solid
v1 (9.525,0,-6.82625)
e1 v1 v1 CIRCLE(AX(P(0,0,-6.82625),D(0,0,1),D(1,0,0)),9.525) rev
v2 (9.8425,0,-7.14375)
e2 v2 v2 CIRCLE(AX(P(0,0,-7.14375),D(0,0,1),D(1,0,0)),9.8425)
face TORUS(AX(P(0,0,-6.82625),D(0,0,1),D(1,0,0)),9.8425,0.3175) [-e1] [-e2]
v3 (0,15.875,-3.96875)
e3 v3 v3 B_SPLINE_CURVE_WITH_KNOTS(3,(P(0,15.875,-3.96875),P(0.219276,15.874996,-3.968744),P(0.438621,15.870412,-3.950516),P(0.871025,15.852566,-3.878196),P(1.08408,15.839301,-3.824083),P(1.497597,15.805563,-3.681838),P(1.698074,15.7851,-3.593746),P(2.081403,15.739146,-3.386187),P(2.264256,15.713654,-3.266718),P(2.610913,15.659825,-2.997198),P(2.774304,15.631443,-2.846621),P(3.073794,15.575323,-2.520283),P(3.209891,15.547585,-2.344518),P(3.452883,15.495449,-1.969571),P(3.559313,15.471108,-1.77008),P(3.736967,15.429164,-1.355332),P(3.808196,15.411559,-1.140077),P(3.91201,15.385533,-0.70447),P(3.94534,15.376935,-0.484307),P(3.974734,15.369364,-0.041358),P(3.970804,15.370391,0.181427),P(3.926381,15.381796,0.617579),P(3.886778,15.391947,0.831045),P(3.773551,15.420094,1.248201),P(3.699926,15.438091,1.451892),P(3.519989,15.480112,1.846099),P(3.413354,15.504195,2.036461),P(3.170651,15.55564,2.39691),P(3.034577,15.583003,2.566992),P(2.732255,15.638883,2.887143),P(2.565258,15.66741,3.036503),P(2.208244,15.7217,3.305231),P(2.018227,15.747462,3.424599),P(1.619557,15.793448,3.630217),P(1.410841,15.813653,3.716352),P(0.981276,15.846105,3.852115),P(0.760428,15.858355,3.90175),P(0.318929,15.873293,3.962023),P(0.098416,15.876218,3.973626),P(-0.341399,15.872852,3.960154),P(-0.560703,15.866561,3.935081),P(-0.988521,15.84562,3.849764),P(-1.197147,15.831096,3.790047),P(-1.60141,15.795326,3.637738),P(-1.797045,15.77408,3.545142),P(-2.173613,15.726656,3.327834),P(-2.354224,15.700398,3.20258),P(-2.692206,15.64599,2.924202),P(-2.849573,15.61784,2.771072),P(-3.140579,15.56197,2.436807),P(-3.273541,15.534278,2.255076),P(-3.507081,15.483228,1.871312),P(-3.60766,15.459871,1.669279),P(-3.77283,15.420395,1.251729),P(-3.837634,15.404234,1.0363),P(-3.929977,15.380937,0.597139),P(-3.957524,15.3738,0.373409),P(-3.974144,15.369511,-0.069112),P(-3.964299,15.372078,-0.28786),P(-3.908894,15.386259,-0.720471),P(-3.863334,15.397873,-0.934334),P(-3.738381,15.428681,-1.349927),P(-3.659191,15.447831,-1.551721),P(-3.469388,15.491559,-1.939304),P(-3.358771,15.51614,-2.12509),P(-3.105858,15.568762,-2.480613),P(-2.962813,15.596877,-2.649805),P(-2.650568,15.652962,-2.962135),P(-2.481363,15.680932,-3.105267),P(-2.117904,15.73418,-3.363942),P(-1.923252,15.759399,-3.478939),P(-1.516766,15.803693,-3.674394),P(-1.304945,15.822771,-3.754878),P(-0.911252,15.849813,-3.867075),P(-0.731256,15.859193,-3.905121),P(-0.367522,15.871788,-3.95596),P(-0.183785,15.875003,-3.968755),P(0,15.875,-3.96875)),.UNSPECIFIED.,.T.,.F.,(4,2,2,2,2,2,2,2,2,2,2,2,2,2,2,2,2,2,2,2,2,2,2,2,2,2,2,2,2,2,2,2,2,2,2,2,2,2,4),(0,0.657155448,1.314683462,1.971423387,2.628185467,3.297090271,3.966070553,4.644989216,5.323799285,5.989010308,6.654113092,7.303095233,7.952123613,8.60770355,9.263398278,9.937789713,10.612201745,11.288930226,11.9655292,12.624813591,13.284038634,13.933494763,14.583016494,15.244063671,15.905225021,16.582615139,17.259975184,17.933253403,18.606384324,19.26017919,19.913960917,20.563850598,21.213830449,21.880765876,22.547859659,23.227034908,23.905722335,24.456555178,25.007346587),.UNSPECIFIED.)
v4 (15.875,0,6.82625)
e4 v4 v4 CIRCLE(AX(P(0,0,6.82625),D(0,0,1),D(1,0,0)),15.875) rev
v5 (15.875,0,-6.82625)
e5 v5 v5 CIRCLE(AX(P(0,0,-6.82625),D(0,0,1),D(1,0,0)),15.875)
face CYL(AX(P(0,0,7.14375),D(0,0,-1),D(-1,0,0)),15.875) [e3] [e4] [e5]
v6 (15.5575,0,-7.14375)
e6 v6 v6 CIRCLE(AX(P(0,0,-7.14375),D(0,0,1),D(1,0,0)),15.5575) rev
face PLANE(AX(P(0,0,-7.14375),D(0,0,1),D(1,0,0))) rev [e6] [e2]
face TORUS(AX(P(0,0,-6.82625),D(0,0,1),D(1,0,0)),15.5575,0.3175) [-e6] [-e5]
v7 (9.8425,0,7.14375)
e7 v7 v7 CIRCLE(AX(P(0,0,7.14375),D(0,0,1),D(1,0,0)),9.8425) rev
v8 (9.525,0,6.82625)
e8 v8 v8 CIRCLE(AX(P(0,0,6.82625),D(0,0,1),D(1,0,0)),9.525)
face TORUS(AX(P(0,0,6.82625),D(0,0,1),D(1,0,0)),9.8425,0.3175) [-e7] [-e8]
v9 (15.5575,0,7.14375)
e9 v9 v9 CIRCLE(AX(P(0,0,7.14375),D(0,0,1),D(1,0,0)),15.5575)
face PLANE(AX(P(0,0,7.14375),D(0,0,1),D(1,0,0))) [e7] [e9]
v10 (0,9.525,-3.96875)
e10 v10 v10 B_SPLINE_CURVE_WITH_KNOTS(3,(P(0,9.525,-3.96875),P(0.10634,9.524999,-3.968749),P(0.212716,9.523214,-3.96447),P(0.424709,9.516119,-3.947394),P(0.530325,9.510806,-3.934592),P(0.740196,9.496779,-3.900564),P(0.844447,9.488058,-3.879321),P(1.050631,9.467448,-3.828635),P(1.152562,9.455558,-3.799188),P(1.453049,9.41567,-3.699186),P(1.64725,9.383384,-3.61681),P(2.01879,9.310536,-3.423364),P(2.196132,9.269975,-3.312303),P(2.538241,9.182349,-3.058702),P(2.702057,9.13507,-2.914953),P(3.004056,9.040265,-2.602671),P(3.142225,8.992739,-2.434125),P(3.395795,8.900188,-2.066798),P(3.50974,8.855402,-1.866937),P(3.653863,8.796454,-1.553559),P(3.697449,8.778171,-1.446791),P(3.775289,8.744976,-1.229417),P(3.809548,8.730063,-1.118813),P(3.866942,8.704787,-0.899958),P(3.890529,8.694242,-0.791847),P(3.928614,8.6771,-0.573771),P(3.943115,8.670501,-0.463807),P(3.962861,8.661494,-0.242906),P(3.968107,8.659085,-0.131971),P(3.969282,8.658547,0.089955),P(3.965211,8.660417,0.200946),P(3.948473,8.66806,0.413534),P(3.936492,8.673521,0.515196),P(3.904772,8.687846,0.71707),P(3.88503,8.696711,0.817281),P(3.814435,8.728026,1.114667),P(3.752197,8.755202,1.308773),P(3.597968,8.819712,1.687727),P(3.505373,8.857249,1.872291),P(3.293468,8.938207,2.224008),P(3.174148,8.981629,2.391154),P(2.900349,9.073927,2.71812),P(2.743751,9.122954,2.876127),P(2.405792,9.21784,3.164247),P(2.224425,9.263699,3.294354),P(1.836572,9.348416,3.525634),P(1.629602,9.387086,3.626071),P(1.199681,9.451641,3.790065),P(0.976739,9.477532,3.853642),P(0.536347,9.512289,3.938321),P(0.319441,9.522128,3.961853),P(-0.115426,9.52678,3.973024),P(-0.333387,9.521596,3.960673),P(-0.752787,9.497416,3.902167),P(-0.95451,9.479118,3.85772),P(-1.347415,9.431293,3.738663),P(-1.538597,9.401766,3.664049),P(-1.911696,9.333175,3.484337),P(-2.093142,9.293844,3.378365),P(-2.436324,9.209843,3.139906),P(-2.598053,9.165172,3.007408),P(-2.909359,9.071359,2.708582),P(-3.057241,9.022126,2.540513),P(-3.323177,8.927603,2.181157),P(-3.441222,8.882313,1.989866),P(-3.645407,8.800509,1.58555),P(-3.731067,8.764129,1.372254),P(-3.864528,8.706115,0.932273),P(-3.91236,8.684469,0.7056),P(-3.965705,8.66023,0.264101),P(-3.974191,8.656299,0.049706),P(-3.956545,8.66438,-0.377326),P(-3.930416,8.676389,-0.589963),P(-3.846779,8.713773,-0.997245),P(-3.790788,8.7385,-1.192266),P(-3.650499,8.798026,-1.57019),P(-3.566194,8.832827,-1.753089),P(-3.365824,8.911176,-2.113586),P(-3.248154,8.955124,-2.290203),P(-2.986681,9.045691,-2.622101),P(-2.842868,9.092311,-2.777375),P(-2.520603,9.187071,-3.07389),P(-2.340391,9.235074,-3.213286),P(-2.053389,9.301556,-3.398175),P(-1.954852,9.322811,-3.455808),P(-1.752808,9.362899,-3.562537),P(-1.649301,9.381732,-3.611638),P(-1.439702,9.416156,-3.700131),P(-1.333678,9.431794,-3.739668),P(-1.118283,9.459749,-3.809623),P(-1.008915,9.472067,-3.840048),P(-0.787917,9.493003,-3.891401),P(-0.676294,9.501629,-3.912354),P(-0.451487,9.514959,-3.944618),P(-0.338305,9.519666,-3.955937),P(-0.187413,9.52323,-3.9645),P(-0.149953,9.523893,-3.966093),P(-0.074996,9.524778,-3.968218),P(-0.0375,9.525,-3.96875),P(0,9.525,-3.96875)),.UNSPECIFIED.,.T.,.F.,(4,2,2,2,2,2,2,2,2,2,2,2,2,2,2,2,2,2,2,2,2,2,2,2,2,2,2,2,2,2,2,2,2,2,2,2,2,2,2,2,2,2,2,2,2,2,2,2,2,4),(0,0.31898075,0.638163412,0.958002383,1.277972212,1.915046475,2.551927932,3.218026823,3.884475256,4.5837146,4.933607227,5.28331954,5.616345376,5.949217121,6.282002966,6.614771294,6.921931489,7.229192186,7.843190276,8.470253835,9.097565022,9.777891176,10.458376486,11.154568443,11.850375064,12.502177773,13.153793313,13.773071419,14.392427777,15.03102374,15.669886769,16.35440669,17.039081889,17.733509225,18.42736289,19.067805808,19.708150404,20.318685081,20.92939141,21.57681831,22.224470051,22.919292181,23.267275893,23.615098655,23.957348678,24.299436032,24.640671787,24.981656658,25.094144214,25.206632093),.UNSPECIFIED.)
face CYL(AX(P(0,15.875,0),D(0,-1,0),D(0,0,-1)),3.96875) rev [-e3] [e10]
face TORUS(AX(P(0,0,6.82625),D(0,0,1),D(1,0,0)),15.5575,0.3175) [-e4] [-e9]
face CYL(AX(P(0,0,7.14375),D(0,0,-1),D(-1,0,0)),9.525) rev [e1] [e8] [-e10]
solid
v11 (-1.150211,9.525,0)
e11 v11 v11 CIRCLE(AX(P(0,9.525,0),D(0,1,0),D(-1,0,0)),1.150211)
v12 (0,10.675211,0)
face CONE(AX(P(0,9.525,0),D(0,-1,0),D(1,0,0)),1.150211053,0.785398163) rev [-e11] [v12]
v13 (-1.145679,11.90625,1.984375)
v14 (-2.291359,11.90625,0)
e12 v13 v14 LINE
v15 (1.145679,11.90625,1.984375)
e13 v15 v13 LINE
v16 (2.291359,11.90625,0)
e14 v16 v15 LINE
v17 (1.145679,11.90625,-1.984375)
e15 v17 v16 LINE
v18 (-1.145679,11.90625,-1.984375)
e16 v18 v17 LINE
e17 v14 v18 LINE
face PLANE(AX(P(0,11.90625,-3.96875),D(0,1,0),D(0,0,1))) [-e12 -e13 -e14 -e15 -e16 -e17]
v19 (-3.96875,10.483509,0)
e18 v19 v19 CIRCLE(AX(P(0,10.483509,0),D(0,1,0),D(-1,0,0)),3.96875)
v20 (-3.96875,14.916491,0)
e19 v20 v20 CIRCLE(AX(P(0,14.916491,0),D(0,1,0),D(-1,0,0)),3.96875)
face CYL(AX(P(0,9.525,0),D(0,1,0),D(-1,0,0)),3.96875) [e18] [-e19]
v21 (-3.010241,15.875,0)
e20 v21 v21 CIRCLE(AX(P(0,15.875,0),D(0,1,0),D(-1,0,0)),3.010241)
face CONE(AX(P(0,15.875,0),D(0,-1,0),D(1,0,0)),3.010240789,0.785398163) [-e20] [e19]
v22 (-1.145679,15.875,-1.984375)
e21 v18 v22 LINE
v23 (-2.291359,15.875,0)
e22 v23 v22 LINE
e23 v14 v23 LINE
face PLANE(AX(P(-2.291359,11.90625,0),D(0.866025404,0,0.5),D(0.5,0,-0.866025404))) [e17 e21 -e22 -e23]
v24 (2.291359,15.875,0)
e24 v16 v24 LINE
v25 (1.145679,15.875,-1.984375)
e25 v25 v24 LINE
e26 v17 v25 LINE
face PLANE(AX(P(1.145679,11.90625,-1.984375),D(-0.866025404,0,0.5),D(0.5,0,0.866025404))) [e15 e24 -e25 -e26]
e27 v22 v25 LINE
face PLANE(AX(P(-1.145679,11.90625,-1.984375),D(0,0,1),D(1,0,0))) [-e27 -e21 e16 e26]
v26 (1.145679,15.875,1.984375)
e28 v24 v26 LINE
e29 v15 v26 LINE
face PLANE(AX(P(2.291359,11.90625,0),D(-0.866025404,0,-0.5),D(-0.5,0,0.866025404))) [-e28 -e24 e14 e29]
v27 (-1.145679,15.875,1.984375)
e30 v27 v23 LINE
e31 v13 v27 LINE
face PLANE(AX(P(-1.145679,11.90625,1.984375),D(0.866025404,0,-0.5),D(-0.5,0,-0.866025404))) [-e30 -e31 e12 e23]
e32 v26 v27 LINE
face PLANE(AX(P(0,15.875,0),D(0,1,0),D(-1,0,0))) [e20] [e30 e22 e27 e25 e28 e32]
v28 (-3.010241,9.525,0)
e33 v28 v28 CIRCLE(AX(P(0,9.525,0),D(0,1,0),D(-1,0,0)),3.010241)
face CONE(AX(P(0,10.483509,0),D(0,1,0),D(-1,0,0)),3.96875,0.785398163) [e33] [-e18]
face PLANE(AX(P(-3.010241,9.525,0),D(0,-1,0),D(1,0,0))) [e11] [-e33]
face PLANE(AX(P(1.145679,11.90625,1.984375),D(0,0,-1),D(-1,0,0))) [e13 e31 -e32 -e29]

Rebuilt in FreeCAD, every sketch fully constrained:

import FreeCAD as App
import Part
import Sketcher
Q = App.Units.Quantity


def edges_at(feature, points):
    """Names of the edges that pass closest to the given points."""
    edges = feature.Shape.Edges
    near = lambda p: min(range(len(edges)), key=lambda i: edges[i].distToShape(Part.Vertex(*p))[0])
    return sorted({f"Edge{near(p) + 1}" for p in points})


def add_polygon(sketch, points):
    """Adds a closed chain of lines whose ends are joined by coincident constraints."""
    first, n = sketch.GeometryCount, len(points)
    for a, b in zip(points, points[1:] + points[:1]):
        sketch.addGeometry(Part.LineSegment(App.Vector(*a, 0), App.Vector(*b, 0)), False)
    for i in range(n):
        sketch.addConstraint(Sketcher.Constraint("Coincident", first + i, 2, first + (i + 1) % n, 1))

doc = App.newDocument("Part")
body = doc.addObject("PartDesign::Body", "Body")

# Sketch on XY plane
sketch1 = body.newObject("Sketcher::SketchObject", "Sketch")
sketch1.AttachmentSupport = (doc.getObject("XY_Plane"), [""])
sketch1.MapMode = "FlatFace"
sketch1.addGeometry(Part.Circle(App.Vector(0, 0, 0), App.Vector(0, 0, 1), 16), False)
sketch1.addGeometry(Part.Circle(App.Vector(0, 0, 0), App.Vector(0, 0, 1), 10), False)
sketch1.addConstraint(Sketcher.Constraint("Coincident", 0, 3, -1, 1))
sketch1.addConstraint(Sketcher.Constraint("Coincident", 1, 3, -1, 1))
sketch1.addConstraint(Sketcher.Constraint("Diameter", 0, Q("1.25 in")))
sketch1.addConstraint(Sketcher.Constraint("Diameter", 1, Q("0.75 in")))
pad1 = body.newObject("PartDesign::Pad", "Pad")
pad1.Profile = sketch1
pad1.Length = Q("0.5625 in")
pad1.Midplane = True

# Sketch on XZ plane
sketch2 = body.newObject("Sketcher::SketchObject", "Sketch001")
sketch2.AttachmentSupport = (doc.getObject("XZ_Plane"), [""])
sketch2.MapMode = "FlatFace"
sketch2.addGeometry(Part.Circle(App.Vector(0, 0, 0), App.Vector(0, 0, 1), 4), False)
sketch2.addConstraint(Sketcher.Constraint("Coincident", 0, 3, -1, 1))
sketch2.addConstraint(Sketcher.Constraint("Diameter", 0, Q("0.3125 in")))
pocket1 = body.newObject("PartDesign::Pocket", "Pocket")
pocket1.Profile = sketch2
pocket1.Type = "ThroughAll"
doc.recompute()

fillet = body.newObject("PartDesign::Fillet", "Fillet")
fillet.Base = (pocket1, edges_at(pocket1, [
    (-15.875, 0, -7.144),
    (-15.875, 0, 7.144),
    (-9.525, 0, -7.144),
    (-9.525, 0, 7.144),
]))
fillet.Radius = Q("0.0125 in")
body2 = doc.addObject("PartDesign::Body", "Body001")

# Sketch on XY plane
sketch3 = body2.newObject("Sketcher::SketchObject", "Sketch002")
sketch3.AttachmentSupport = (doc.getObject("XY_Plane001"), [""])
sketch3.MapMode = "FlatFace"
add_polygon(sketch3, [(-3, 9.5), (-1.2, 9.5), (0, 10.7), (0, 15.9), (-3, 15.9), (-4, 14.9), (-4, 10.5)])  # lines 0-6
sketch3.addConstraint(Sketcher.Constraint("Horizontal", 0))
sketch3.addConstraint(Sketcher.Constraint("Vertical", 2))
sketch3.addConstraint(Sketcher.Constraint("Horizontal", 3))
sketch3.addConstraint(Sketcher.Constraint("Vertical", 5))
sketch3.addConstraint(Sketcher.Constraint("PointOnObject", 1, 2, -2))
sketch3.addConstraint(Sketcher.Constraint("Parallel", 1, 4))
sketch3.addConstraint(Sketcher.Constraint("Perpendicular", 4, 6))
sketch3.addConstraint(Sketcher.Constraint("Vertical", 3, 2, 6, 2))
sketch3.addConstraint(Sketcher.Constraint("Equal", 4, 6))
sketch3.addConstraint(Sketcher.Constraint("DistanceY", 0, 2, 2, 2, Q("0.25 in")))
sketch3.addConstraint(Sketcher.Constraint("DistanceY", -1, 1, 0, 2, Q("0.375 in")))
sketch3.addConstraint(Sketcher.Constraint("DistanceX", 4, 2, -1, 1, Q("0.15625 in")))
sketch3.addConstraint(Sketcher.Constraint("DistanceX", 0, 1, 0, 2, 1.86003))
sketch3.addConstraint(Sketcher.Constraint("DistanceX", 3, 2, 3, 1, 3.010241))
revolution = body2.newObject("PartDesign::Revolution", "Revolution")
revolution.Profile = sketch3
revolution.ReferenceAxis = (sketch3, ["V_Axis"])
revolution.Angle = 360

# Sketch on XZ plane
sketch4 = body2.newObject("Sketcher::SketchObject", "Sketch003")
sketch4.AttachmentSupport = (doc.getObject("XZ_Plane001"), [""])
sketch4.MapMode = "FlatFace"
sketch4.AttachmentOffset = App.Placement(App.Vector(0, 0, -0.625 * 25.4), App.Rotation())
add_polygon(sketch4, [(2.3, 0), (1.1, 2), (-1.1, 2), (-2.3, 0), (-1.1, -2), (1.1, -2)])  # lines 0-5
sketch4.addConstraint(Sketcher.Constraint("Horizontal", 1))
sketch4.addConstraint(Sketcher.Constraint("Horizontal", 4))
sketch4.addConstraint(Sketcher.Constraint("Symmetric", 0, 2, 3, 2, -1, 1))
sketch4.addConstraint(Sketcher.Constraint("Symmetric", 2, 2, 5, 2, -1, 1))
sketch4.addConstraint(Sketcher.Constraint("PointOnObject", 2, 2, -1))
sketch4.addConstraint(Sketcher.Constraint("Parallel", 2, 5))
sketch4.addConstraint(Sketcher.Constraint("Vertical", 1, 2, 3, 2))
sketch4.addConstraint(Sketcher.Constraint("Angle", 0, Q("120 deg")))
sketch4.addConstraint(Sketcher.Constraint("DistanceY", -1, 1, 0, 2, Q("0.078125 in")))
sketch4.addConstraint(Sketcher.Constraint("DistanceX", 1, 2, 1, 1, 2.291359))
pocket2 = body2.newObject("PartDesign::Pocket", "Pocket001")
pocket2.Profile = sketch4
pocket2.Length = Q("0.15625 in")
pocket2.Reversed = True

doc.recompute()
